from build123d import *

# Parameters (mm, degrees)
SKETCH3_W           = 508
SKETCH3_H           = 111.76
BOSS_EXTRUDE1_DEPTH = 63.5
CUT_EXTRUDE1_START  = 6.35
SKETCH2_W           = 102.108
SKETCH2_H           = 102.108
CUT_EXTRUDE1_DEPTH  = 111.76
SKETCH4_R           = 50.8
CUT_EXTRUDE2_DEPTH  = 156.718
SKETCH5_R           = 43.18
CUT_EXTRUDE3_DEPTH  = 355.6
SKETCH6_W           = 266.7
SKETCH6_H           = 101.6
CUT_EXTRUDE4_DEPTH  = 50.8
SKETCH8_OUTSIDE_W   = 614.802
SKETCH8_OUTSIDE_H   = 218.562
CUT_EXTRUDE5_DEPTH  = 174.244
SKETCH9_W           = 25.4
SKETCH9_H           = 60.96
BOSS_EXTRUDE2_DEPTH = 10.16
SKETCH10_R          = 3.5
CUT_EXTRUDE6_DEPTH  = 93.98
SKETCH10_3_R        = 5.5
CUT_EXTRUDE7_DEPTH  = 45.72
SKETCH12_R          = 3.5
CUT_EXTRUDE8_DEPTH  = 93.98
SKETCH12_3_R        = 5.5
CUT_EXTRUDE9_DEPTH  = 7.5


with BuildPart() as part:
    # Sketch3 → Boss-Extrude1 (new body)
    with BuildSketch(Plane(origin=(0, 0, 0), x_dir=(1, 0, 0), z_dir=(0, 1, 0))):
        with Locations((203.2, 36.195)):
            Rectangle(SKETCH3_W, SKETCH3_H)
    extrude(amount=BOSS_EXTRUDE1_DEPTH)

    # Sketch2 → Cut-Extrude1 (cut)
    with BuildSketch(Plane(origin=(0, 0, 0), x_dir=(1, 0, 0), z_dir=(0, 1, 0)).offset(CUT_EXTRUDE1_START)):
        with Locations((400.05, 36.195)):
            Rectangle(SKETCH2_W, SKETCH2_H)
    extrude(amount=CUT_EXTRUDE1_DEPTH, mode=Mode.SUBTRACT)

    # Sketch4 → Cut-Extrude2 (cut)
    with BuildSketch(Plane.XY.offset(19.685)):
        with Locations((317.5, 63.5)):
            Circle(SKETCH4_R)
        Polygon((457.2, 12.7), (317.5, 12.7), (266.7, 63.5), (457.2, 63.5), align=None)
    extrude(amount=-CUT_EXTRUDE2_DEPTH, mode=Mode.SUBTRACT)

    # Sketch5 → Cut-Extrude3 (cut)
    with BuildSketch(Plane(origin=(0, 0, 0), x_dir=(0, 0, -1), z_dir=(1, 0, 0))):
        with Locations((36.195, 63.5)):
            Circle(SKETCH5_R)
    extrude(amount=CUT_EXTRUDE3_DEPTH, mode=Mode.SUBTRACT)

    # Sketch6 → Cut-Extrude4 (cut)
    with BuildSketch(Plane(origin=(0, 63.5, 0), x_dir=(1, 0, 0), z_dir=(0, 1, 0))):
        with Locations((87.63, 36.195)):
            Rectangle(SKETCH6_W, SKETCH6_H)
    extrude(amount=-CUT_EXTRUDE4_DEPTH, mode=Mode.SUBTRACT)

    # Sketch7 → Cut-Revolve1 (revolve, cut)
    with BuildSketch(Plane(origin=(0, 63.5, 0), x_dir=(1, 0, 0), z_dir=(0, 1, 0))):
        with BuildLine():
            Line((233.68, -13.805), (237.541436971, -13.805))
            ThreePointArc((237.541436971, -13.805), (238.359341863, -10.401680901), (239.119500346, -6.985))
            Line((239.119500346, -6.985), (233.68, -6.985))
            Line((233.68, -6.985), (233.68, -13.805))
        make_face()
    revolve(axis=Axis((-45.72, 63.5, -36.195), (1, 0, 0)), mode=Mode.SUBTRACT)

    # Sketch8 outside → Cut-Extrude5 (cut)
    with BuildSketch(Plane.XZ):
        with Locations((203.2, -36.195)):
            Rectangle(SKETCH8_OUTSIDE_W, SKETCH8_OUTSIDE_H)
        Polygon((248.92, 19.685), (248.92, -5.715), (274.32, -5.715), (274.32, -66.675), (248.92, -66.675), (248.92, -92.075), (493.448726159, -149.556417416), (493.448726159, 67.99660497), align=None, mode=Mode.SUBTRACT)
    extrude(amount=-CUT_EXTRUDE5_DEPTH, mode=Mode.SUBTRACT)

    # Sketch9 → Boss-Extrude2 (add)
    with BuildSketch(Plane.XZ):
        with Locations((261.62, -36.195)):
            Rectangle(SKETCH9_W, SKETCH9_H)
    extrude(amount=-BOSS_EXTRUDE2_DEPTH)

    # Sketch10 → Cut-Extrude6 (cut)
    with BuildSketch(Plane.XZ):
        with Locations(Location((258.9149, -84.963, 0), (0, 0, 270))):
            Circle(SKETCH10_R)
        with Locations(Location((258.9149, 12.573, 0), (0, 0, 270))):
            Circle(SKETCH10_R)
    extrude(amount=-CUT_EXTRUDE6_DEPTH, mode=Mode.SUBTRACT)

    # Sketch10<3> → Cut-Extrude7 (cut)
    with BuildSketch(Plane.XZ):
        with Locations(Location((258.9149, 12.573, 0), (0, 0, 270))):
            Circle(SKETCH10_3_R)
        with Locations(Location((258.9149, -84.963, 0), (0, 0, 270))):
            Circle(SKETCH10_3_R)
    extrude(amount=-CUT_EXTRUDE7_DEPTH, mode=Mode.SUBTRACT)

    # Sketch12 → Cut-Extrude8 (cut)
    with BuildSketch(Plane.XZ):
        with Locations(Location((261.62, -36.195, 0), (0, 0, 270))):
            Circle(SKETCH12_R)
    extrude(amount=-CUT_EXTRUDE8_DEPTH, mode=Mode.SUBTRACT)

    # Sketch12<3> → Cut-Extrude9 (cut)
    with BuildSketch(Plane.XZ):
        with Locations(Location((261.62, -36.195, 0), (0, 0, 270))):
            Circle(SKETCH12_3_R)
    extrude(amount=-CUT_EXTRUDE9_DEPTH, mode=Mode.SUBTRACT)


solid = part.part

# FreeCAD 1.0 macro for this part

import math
import FreeCAD as App
import Part
import Sketcher
Q = App.Units.Quantity

doc = App.newDocument("Part")
body = doc.addObject("PartDesign::Body", "Body")

sketch1 = body.newObject("Sketcher::SketchObject", "Sketch")
sketch1.AttachmentSupport = (doc.getObject("XZ_Plane"), [""])
sketch1.MapMode = "FlatFace"
sketch1.addGeometry([
    Part.LineSegment(App.Vector(-51, -92, 0), App.Vector(-51, 20, 0)),
    Part.LineSegment(App.Vector(-51, 20, 0), App.Vector(457, 20, 0)),
    Part.LineSegment(App.Vector(457, 20, 0), App.Vector(457, -92, 0)),
    Part.LineSegment(App.Vector(457, -92, 0), App.Vector(-51, -92, 0)),
], False)
sketch1.addConstraint([
    Sketcher.Constraint("Coincident", 0, 2, 1, 1),
    Sketcher.Constraint("Coincident", 1, 2, 2, 1),
    Sketcher.Constraint("Coincident", 2, 2, 3, 1),
    Sketcher.Constraint("Coincident", 3, 2, 0, 1),
    Sketcher.Constraint("Vertical", 0),
    Sketcher.Constraint("Horizontal", 1),
    Sketcher.Constraint("Vertical", 2),
    Sketcher.Constraint("Horizontal", 3),
    Sketcher.Constraint("DistanceX", 1, 1, 1, 2, Q("20 in")),
    Sketcher.Constraint("DistanceY", 0, 1, 0, 2, Q("4.4 in")),
    Sketcher.Constraint("DistanceX", 0, 2, -1, 1, Q("2 in")),
    Sketcher.Constraint("DistanceY", -1, 1, 0, 2, Q("0.775 in")),
])
pad1 = body.newObject("PartDesign::Pad", "Pad")
pad1.Profile = sketch1
pad1.Length = Q("2.5 in")
pad1.Reversed = True

sketch2 = body.newObject("Sketcher::SketchObject", "Sketch001")
sketch2.AttachmentSupport = (doc.getObject("XZ_Plane"), [""])
sketch2.MapMode = "FlatFace"
sketch2.AttachmentOffset = App.Placement(App.Vector(0, 0, -0.25 * 25.4), App.Rotation())
sketch2.addGeometry([
    Part.LineSegment(App.Vector(349, -87, 0), App.Vector(349, 15, 0)),
    Part.LineSegment(App.Vector(349, 15, 0), App.Vector(451, 15, 0)),
    Part.LineSegment(App.Vector(451, 15, 0), App.Vector(451, -87, 0)),
    Part.LineSegment(App.Vector(451, -87, 0), App.Vector(349, -87, 0)),
], False)
sketch2.addConstraint([
    Sketcher.Constraint("Coincident", 0, 2, 1, 1),
    Sketcher.Constraint("Coincident", 1, 2, 2, 1),
    Sketcher.Constraint("Coincident", 2, 2, 3, 1),
    Sketcher.Constraint("Coincident", 3, 2, 0, 1),
    Sketcher.Constraint("Vertical", 0),
    Sketcher.Constraint("Horizontal", 1),
    Sketcher.Constraint("Vertical", 2),
    Sketcher.Constraint("Horizontal", 3),
    Sketcher.Constraint("Equal", 3, 0),
    Sketcher.Constraint("DistanceX", 1, 1, 1, 2, Q("4.02 in")),
    Sketcher.Constraint("DistanceX", -1, 1, 0, 2, Q("13.74 in")),
    Sketcher.Constraint("DistanceY", -1, 1, 0, 2, Q("0.585 in")),
])
pocket1 = body.newObject("PartDesign::Pocket", "Pocket")
pocket1.Profile = sketch2
pocket1.Length = Q("4.4 in")

sketch3 = body.newObject("Sketcher::SketchObject", "Sketch002")
sketch3.AttachmentSupport = (doc.getObject("XY_Plane"), [""])
sketch3.MapMode = "FlatFace"
sketch3.AttachmentOffset = App.Placement(App.Vector(0, 0, 0.775 * 25.4), App.Rotation())
sketch3.addGeometry([
    Part.ArcOfCircle(Part.Circle(App.Vector(318, 64, 0), App.Vector(0, 0, 1), 51), math.radians(0), math.radians(270)),
    Part.LineSegment(App.Vector(318, 13, 0), App.Vector(457, 13, 0)),
    Part.LineSegment(App.Vector(457, 13, 0), App.Vector(457, 64, 0)),
    Part.LineSegment(App.Vector(457, 64, 0), App.Vector(368, 64, 0)),
], False)
sketch3.addConstraint([
    Sketcher.Constraint("Tangent", 0, 2, 1, 1),
    Sketcher.Constraint("Coincident", 1, 2, 2, 1),
    Sketcher.Constraint("Coincident", 2, 2, 3, 1),
    Sketcher.Constraint("Coincident", 3, 2, 0, 1),
    Sketcher.Constraint("Horizontal", 1),
    Sketcher.Constraint("Vertical", 2),
    Sketcher.Constraint("Horizontal", 3),
    Sketcher.Constraint("Horizontal", 0, 3, 2, 2),
    Sketcher.Constraint("Radius", 0, Q("2 in")),
    Sketcher.Constraint("DistanceX", 1, 1, 1, 2, Q("5.5 in")),
    Sketcher.Constraint("DistanceX", -1, 1, 1, 2, Q("18 in")),
    Sketcher.Constraint("DistanceY", -1, 1, 0, 3, Q("2.5 in")),
])
pocket2 = body.newObject("PartDesign::Pocket", "Pocket001")
pocket2.Profile = sketch3
pocket2.Length = Q("6.17 in")

sketch4 = body.newObject("Sketcher::SketchObject", "Sketch003")
sketch4.AttachmentSupport = (doc.getObject("YZ_Plane"), [""])
sketch4.MapMode = "FlatFace"
sketch4.addGeometry(Part.Circle(App.Vector(64, -36, 0), App.Vector(0, 0, 1), 43), False)
sketch4.addConstraint([
    Sketcher.Constraint("Diameter", 0, Q("3.4 in")),
    Sketcher.Constraint("DistanceX", -1, 1, 0, 3, Q("2.5 in")),
    Sketcher.Constraint("DistanceY", 0, 3, -1, 1, Q("1.425 in")),
])
pocket3 = body.newObject("PartDesign::Pocket", "Pocket002")
pocket3.Profile = sketch4
pocket3.Length = Q("14 in")
pocket3.Reversed = True

sketch5 = body.newObject("Sketcher::SketchObject", "Sketch004")
sketch5.AttachmentSupport = (doc.getObject("XZ_Plane"), [""])
sketch5.MapMode = "FlatFace"
sketch5.AttachmentOffset = App.Placement(App.Vector(0, 0, -2.5 * 25.4), App.Rotation())
sketch5.addGeometry([
    Part.LineSegment(App.Vector(-46, -87, 0), App.Vector(-46, 15, 0)),
    Part.LineSegment(App.Vector(-46, 15, 0), App.Vector(221, 15, 0)),
    Part.LineSegment(App.Vector(221, 15, 0), App.Vector(221, -87, 0)),
    Part.LineSegment(App.Vector(221, -87, 0), App.Vector(-46, -87, 0)),
], False)
sketch5.addConstraint([
    Sketcher.Constraint("Coincident", 0, 2, 1, 1),
    Sketcher.Constraint("Coincident", 1, 2, 2, 1),
    Sketcher.Constraint("Coincident", 2, 2, 3, 1),
    Sketcher.Constraint("Coincident", 3, 2, 0, 1),
    Sketcher.Constraint("Vertical", 0),
    Sketcher.Constraint("Horizontal", 1),
    Sketcher.Constraint("Vertical", 2),
    Sketcher.Constraint("Horizontal", 3),
    Sketcher.Constraint("DistanceY", 0, 1, 0, 2, Q("4 in")),
    Sketcher.Constraint("DistanceX", 1, 1, 1, 2, Q("10.5 in")),
    Sketcher.Constraint("DistanceX", 0, 2, -1, 1, Q("1.8 in")),
    Sketcher.Constraint("DistanceY", -1, 1, 0, 2, Q("0.575 in")),
])
pocket4 = body.newObject("PartDesign::Pocket", "Pocket003")
pocket4.Profile = sketch5
pocket4.Length = Q("2 in")
pocket4.Reversed = True

sketch6 = body.newObject("Sketcher::SketchObject", "Sketch005")
sketch6.AttachmentSupport = (doc.getObject("XZ_Plane"), [""])
sketch6.MapMode = "FlatFace"
sketch6.AttachmentOffset = App.Placement(App.Vector(0, 0, -2.5 * 25.4), App.Rotation())
sketch6.addGeometry([
    Part.LineSegment(App.Vector(233.7, 13.8, 0), App.Vector(237.5, 13.8, 0)),
    Part.ArcOfCircle(Part.Circle(App.Vector(37, -36.2, 0), App.Vector(0, 0, 1), 206.7), math.radians(12.06), math.radians(14)),
    Part.LineSegment(App.Vector(239.1, 7, 0), App.Vector(233.7, 7, 0)),
    Part.LineSegment(App.Vector(233.7, 7, 0), App.Vector(233.7, 13.8, 0)),
], False)
sketch6.addGeometry(Part.LineSegment(App.Vector(37, -36.2, 0), App.Vector(239.1, -36.2, 0)), True)
sketch6.addConstraint([
    Sketcher.Constraint("Coincident", 0, 2, 1, 2),
    Sketcher.Constraint("Coincident", 1, 1, 2, 1),
    Sketcher.Constraint("Coincident", 2, 2, 3, 1),
    Sketcher.Constraint("Coincident", 3, 2, 0, 1),
    Sketcher.Constraint("Horizontal", 0),
    Sketcher.Constraint("Horizontal", 2),
    Sketcher.Constraint("Vertical", 3),
    Sketcher.Constraint("Horizontal", 4),
    Sketcher.Constraint("Coincident", 4, 1, 1, 3),
    Sketcher.Constraint("Vertical", 1, 1, 4, 2),
    Sketcher.Constraint("DistanceX", -1, 1, 2, 2, Q("9.2 in")),
    Sketcher.Constraint("DistanceY", 1, 3, 1, 1, Q("1.7 in")),
    Sketcher.Constraint("DistanceY", 1, 3, -1, 1, Q("1.425 in")),
    Sketcher.Constraint("DistanceX", 2, 2, 2, 1, Q("5.4395 mm")),
    Sketcher.Constraint("DistanceY", 3, 1, 3, 2, Q("6.82 mm")),
    Sketcher.Constraint("Radius", 1, Q("206.699997 mm")),
])
groove = body.newObject("PartDesign::Groove", "Groove")
groove.Profile = sketch6
groove.ReferenceAxis = (sketch6, ["Axis0"])
groove.Angle = 360

sketch7 = body.newObject("Sketcher::SketchObject", "Sketch006")
sketch7.AttachmentSupport = (doc.getObject("XZ_Plane"), [""])
sketch7.MapMode = "FlatFace"
sketch7.addGeometry([
    Part.LineSegment(App.Vector(-104, 73, 0), App.Vector(-104, -145, 0)),
    Part.LineSegment(App.Vector(-104, -145, 0), App.Vector(476, -145, 0)),
    Part.LineSegment(App.Vector(476, -145, 0), App.Vector(249, -92, 0)),
    Part.LineSegment(App.Vector(249, -92, 0), App.Vector(249, -67, 0)),
    Part.LineSegment(App.Vector(249, -67, 0), App.Vector(274, -67, 0)),
    Part.LineSegment(App.Vector(274, -67, 0), App.Vector(274, -6, 0)),
    Part.LineSegment(App.Vector(274, -6, 0), App.Vector(249, -6, 0)),
    Part.LineSegment(App.Vector(249, -6, 0), App.Vector(249, 20, 0)),
    Part.LineSegment(App.Vector(249, 20, 0), App.Vector(493, 68, 0)),
    Part.LineSegment(App.Vector(493, 68, 0), App.Vector(493, -145, 0)),
    Part.LineSegment(App.Vector(493, -145, 0), App.Vector(511, -145, 0)),
    Part.LineSegment(App.Vector(511, -145, 0), App.Vector(511, 73, 0)),
    Part.LineSegment(App.Vector(511, 73, 0), App.Vector(-104, 73, 0)),
], False)
sketch7.addConstraint([
    Sketcher.Constraint("Coincident", 0, 2, 1, 1),
    Sketcher.Constraint("Coincident", 1, 2, 2, 1),
    Sketcher.Constraint("Coincident", 2, 2, 3, 1),
    Sketcher.Constraint("Coincident", 3, 2, 4, 1),
    Sketcher.Constraint("Coincident", 4, 2, 5, 1),
    Sketcher.Constraint("Coincident", 5, 2, 6, 1),
    Sketcher.Constraint("Coincident", 6, 2, 7, 1),
    Sketcher.Constraint("Coincident", 7, 2, 8, 1),
    Sketcher.Constraint("Coincident", 8, 2, 9, 1),
    Sketcher.Constraint("Coincident", 9, 2, 10, 1),
    Sketcher.Constraint("Coincident", 10, 2, 11, 1),
    Sketcher.Constraint("Coincident", 11, 2, 12, 1),
    Sketcher.Constraint("Coincident", 12, 2, 0, 1),
    Sketcher.Constraint("Vertical", 0),
    Sketcher.Constraint("Horizontal", 1),
    Sketcher.Constraint("Vertical", 3),
    Sketcher.Constraint("Horizontal", 4),
    Sketcher.Constraint("Vertical", 5),
    Sketcher.Constraint("Horizontal", 6),
    Sketcher.Constraint("Vertical", 7),
    Sketcher.Constraint("Vertical", 9),
    Sketcher.Constraint("Horizontal", 10),
    Sketcher.Constraint("Vertical", 11),
    Sketcher.Constraint("Horizontal", 12),
    Sketcher.Constraint("Horizontal", 1, 2, 9, 2),
    Sketcher.Constraint("Vertical", 3, 2, 6, 2),
    Sketcher.Constraint("Equal", 6, 3),
    Sketcher.Constraint("Equal", 3, 7),
    Sketcher.Constraint("DistanceX", 4, 1, 4, 2, Q("1 in")),
    Sketcher.Constraint("DistanceY", 5, 1, 5, 2, Q("2.4 in")),
    Sketcher.Constraint("DistanceX", -1, 1, 2, 2, Q("9.8 in")),
    Sketcher.Constraint("DistanceY", 2, 2, -1, 1, Q("3.625 in")),
    Sketcher.Constraint("DistanceX", 12, 2, 12, 1, Q("614.802 mm")),
    Sketcher.Constraint("DistanceY", 0, 2, 0, 1, Q("218.562 mm")),
    Sketcher.Constraint("DistanceX", 0, 2, -1, 1, Q("104.201 mm")),
    Sketcher.Constraint("DistanceY", 0, 2, -1, 1, Q("145.476 mm")),
    Sketcher.Constraint("Distance", 8, Q("249.25551 mm")),
    Sketcher.Constraint("DistanceX", 1, 1, 1, 2, Q("580.291433 mm")),
    Sketcher.Constraint("DistanceX", 10, 1, 10, 2, Q("17.152274 mm")),
])
pocket5 = body.newObject("PartDesign::Pocket", "Pocket004")
pocket5.Profile = sketch7
pocket5.Length = Q("6.86 in")

sketch8 = body.newObject("Sketcher::SketchObject", "Sketch007")
sketch8.AttachmentSupport = (doc.getObject("XZ_Plane"), [""])
sketch8.MapMode = "FlatFace"
sketch8.addGeometry([
    Part.LineSegment(App.Vector(249, -6, 0), App.Vector(249, -67, 0)),
    Part.LineSegment(App.Vector(249, -67, 0), App.Vector(274, -67, 0)),
    Part.LineSegment(App.Vector(274, -67, 0), App.Vector(274, -6, 0)),
    Part.LineSegment(App.Vector(274, -6, 0), App.Vector(249, -6, 0)),
], False)
sketch8.addConstraint([
    Sketcher.Constraint("Coincident", 0, 2, 1, 1),
    Sketcher.Constraint("Coincident", 1, 2, 2, 1),
    Sketcher.Constraint("Coincident", 2, 2, 3, 1),
    Sketcher.Constraint("Coincident", 3, 2, 0, 1),
    Sketcher.Constraint("Vertical", 0),
    Sketcher.Constraint("Horizontal", 1),
    Sketcher.Constraint("Vertical", 2),
    Sketcher.Constraint("Horizontal", 3),
    Sketcher.Constraint("DistanceX", 1, 1, 1, 2, Q("1 in")),
    Sketcher.Constraint("DistanceY", 0, 2, 0, 1, Q("2.4 in")),
    Sketcher.Constraint("DistanceX", -1, 1, 0, 2, Q("9.8 in")),
    Sketcher.Constraint("DistanceY", 0, 2, -1, 1, Q("2.625 in")),
])
pad2 = body.newObject("PartDesign::Pad", "Pad001")
pad2.Profile = sketch8
pad2.Length = Q("0.4 in")
pad2.Reversed = True

sketch9 = body.newObject("Sketcher::SketchObject", "Sketch008")
sketch9.AttachmentSupport = (doc.getObject("XZ_Plane"), [""])
sketch9.MapMode = "FlatFace"
sketch9.addGeometry([
    Part.Circle(App.Vector(258.9, -85, 0), App.Vector(0, 0, 1), 3.5),
    Part.Circle(App.Vector(258.9, 12.6, 0), App.Vector(0, 0, 1), 3.5),
], False)
sketch9.addConstraint([
    Sketcher.Constraint("Equal", 0, 1),
    Sketcher.Constraint("Vertical", 0, 3, 1, 3),
    Sketcher.Constraint("Diameter", 0, Q("7 mm")),
    Sketcher.Constraint("DistanceY", 0, 3, 1, 3, Q("3.84 in")),
    Sketcher.Constraint("DistanceY", 0, 3, -1, 1, Q("3.345 in")),
    Sketcher.Constraint("DistanceX", -1, 1, 0, 3, Q("10.1935 in")),
])
pocket6 = body.newObject("PartDesign::Pocket", "Pocket005")
pocket6.Profile = sketch9
pocket6.Length = Q("3.7 in")

sketch10 = body.newObject("Sketcher::SketchObject", "Sketch009")
sketch10.AttachmentSupport = (doc.getObject("XZ_Plane"), [""])
sketch10.MapMode = "FlatFace"
sketch10.addGeometry([
    Part.Circle(App.Vector(259, 13, 0), App.Vector(0, 0, 1), 6),
    Part.Circle(App.Vector(259, -85, 0), App.Vector(0, 0, 1), 6),
], False)
sketch10.addConstraint([
    Sketcher.Constraint("Equal", 0, 1),
    Sketcher.Constraint("Vertical", 0, 3, 1, 3),
    Sketcher.Constraint("Diameter", 0, Q("11 mm")),
    Sketcher.Constraint("DistanceY", 1, 3, 0, 3, Q("3.84 in")),
    Sketcher.Constraint("DistanceY", -1, 1, 0, 3, Q("0.495 in")),
    Sketcher.Constraint("DistanceX", -1, 1, 0, 3, Q("10.1935 in")),
])
pocket7 = body.newObject("PartDesign::Pocket", "Pocket006")
pocket7.Profile = sketch10
pocket7.Length = Q("1.8 in")

sketch11 = body.newObject("Sketcher::SketchObject", "Sketch010")
sketch11.AttachmentSupport = (doc.getObject("XZ_Plane"), [""])
sketch11.MapMode = "FlatFace"
sketch11.addGeometry(Part.Circle(App.Vector(261.6, -36.2, 0), App.Vector(0, 0, 1), 3.5), False)
sketch11.addConstraint([
    Sketcher.Constraint("DistanceX", -1, 1, 0, 3, Q("10.3 in")),
    Sketcher.Constraint("Diameter", 0, Q("7 mm")),
    Sketcher.Constraint("DistanceY", 0, 3, -1, 1, Q("1.425 in")),
])
pocket8 = body.newObject("PartDesign::Pocket", "Pocket007")
pocket8.Profile = sketch11
pocket8.Length = Q("3.7 in")

sketch12 = body.newObject("Sketcher::SketchObject", "Sketch011")
sketch12.AttachmentSupport = (doc.getObject("XZ_Plane"), [""])
sketch12.MapMode = "FlatFace"
sketch12.addGeometry(Part.Circle(App.Vector(262, -36, 0), App.Vector(0, 0, 1), 6), False)
sketch12.addConstraint([
    Sketcher.Constraint("DistanceX", -1, 1, 0, 3, Q("10.3 in")),
    Sketcher.Constraint("Diameter", 0, Q("11 mm")),
    Sketcher.Constraint("DistanceY", 0, 3, -1, 1, Q("1.425 in")),
])
pocket9 = body.newObject("PartDesign::Pocket", "Pocket008")
pocket9.Profile = sketch12
pocket9.Length = 7.5

doc.recompute()
